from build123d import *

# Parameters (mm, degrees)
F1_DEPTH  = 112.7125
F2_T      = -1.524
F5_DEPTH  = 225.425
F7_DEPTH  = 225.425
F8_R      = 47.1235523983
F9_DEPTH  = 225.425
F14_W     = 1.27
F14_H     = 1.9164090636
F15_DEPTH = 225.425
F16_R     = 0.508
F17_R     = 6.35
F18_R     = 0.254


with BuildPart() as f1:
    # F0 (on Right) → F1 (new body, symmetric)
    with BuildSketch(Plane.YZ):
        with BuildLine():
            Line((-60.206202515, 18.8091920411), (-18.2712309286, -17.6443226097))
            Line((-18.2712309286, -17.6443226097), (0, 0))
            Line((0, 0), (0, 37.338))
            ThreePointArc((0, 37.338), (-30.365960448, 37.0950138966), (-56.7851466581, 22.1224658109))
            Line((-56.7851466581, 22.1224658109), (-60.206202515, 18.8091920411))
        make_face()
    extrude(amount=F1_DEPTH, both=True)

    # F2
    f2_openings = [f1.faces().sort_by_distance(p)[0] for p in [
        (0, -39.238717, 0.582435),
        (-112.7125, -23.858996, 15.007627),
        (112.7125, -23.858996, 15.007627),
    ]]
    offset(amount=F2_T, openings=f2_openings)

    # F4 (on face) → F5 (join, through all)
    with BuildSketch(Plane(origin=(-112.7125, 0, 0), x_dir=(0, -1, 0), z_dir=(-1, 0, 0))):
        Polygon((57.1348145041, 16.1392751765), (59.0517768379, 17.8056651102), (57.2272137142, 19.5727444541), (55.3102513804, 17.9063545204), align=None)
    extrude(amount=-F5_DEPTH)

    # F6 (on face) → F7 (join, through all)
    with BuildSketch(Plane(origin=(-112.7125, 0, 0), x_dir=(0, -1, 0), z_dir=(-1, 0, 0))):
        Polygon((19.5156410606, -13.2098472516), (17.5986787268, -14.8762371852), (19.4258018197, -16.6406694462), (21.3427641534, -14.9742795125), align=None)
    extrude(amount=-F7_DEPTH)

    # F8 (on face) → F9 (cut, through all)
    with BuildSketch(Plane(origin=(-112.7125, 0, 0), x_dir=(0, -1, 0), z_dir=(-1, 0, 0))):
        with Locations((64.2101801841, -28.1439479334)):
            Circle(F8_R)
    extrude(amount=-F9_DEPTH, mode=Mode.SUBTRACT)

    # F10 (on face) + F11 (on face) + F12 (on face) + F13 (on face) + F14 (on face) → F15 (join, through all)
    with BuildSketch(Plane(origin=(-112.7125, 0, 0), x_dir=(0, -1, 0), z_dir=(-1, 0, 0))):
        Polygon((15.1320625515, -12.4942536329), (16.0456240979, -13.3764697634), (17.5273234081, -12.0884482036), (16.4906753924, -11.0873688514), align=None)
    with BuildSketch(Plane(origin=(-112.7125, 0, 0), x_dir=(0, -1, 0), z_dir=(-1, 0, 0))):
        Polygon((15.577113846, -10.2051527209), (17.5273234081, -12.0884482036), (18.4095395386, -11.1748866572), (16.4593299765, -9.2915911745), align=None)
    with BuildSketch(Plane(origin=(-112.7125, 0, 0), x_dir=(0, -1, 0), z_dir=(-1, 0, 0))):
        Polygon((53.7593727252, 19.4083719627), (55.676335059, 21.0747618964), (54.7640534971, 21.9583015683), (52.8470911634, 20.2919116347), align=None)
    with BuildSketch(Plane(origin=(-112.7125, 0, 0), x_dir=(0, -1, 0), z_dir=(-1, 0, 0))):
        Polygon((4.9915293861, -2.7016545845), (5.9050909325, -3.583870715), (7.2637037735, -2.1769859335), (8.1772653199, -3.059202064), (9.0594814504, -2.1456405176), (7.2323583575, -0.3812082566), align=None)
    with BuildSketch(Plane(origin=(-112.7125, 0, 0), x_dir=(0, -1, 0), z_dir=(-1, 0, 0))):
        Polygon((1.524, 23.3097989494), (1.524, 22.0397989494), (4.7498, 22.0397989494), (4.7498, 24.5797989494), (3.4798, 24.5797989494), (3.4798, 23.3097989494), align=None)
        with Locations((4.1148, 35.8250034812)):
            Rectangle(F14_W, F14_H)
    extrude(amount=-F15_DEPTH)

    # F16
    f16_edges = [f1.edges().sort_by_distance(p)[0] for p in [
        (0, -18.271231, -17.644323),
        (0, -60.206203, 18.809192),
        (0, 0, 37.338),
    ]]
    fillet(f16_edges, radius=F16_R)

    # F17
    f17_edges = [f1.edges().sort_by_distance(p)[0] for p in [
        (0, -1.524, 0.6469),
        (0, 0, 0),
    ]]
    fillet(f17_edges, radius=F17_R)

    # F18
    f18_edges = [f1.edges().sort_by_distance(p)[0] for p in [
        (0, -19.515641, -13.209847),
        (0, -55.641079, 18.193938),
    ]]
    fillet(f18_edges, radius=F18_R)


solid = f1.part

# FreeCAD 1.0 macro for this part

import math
import FreeCAD as App
import Part
import Sketcher

V = App.Vector
Q = App.Units.Quantity


def edges_at(feature, points):
    """Names of the edges that pass closest to the given points."""
    edges = feature.Shape.Edges
    near = lambda p: min(range(len(edges)), key=lambda i: edges[i].distToShape(Part.Vertex(*p))[0])
    return sorted({f"Edge{near(p) + 1}" for p in points})


def faces_at(feature, points):
    """Names of the faces that lie closest to the given points."""
    faces = feature.Shape.Faces
    near = lambda p: min(range(len(faces)), key=lambda i: faces[i].distToShape(Part.Vertex(*p))[0])
    return sorted({f"Face{near(p) + 1}" for p in points})

doc = App.newDocument("Part")
body = doc.addObject("PartDesign::Body", "Body")

# Sketch on YZ plane
sketch1 = body.newObject("Sketcher::SketchObject", "Sketch")
sketch1.AttachmentSupport = (doc.getObject("YZ_Plane"), [""])
sketch1.MapMode = "FlatFace"
sketch1.addGeometry([
    Part.LineSegment(V(-60.206203, 18.809192, 0), V(-18.271231, -17.644323, 0)),  # 0
    Part.LineSegment(V(-18.271231, -17.644323, 0), V(0, 0, 0)),  # 1
    Part.LineSegment(V(0, 0, 0), V(0, 37.338, 0)),  # 2
    Part.ArcOfCircle(Part.Circle(V(-14.714602, -21.31665, 0), V(0, 0, 1), 60.472204), math.radians(75.916933), math.radians(134.083067)),  # 3
    Part.LineSegment(V(-56.785147, 22.122466, 0), V(-60.206203, 18.809192, 0)),  # 4
], False)
sketch1.addConstraint([
    Sketcher.Constraint("Coincident", 0, 2, 1, 1),
    Sketcher.Constraint("Coincident", 1, 2, 2, 1),
    Sketcher.Constraint("Coincident", 2, 2, 3, 1),
    Sketcher.Constraint("Tangent", 3, 2, 4, 1),
    Sketcher.Constraint("Coincident", 4, 2, 0, 1),
    Sketcher.Constraint("Vertical", 2),
    Sketcher.Constraint("Coincident", 1, 2, -1, 1),
    Sketcher.Constraint("Distance", 1, Q("1 in")),
    Sketcher.Constraint("Angle", 0, Q("-41 deg")),
    Sketcher.Constraint("Angle", 1, Q("44 deg")),
    Sketcher.Constraint("DistanceY", 2, 1, 2, 2, Q("1.47 in")),
    Sketcher.Constraint("Distance", 4, Q("0.1875 in")),
    Sketcher.Constraint("Radius", 3, 60.472204),
    Sketcher.Constraint("DistanceX", 4, 2, 3, 3, 45.4916),
])
pad1 = body.newObject("PartDesign::Pad", "Pad")
pad1.Profile = sketch1
pad1.Length = Q("8.875 in")
pad1.Midplane = True
doc.recompute()

thickness = body.newObject("PartDesign::Thickness", "Thickness")
thickness.Base = (pad1, faces_at(pad1, [(0, -39.239, 0.582), (-112.713, -30.103, 10.756), (112.713, -30.103, 10.756)]))
thickness.Value = Q("0.06 in")
thickness.Reversed = True
thickness.Join = "Arc"

# Sketch on YZ plane
sketch2 = body.newObject("Sketcher::SketchObject", "Sketch001")
sketch2.AttachmentSupport = (doc.getObject("YZ_Plane"), [""])
sketch2.MapMode = "FlatFace"
sketch2.AttachmentOffset = App.Placement(V(0, 0, -4.4375 * 25.4), App.Rotation())
sketch2.addGeometry([
    Part.LineSegment(V(-57.134815, 16.139275, 0), V(-59.051777, 17.805665, 0)),
    Part.LineSegment(V(-59.051777, 17.805665, 0), V(-57.227214, 19.572744, 0)),
    Part.LineSegment(V(-57.227214, 19.572744, 0), V(-55.310251, 17.906355, 0)),
    Part.LineSegment(V(-55.310251, 17.906355, 0), V(-57.134815, 16.139275, 0)),
], False)
sketch2.addConstraint([
    Sketcher.Constraint("Coincident", 0, 2, 1, 1),
    Sketcher.Constraint("Coincident", 1, 2, 2, 1),
    Sketcher.Constraint("Coincident", 2, 2, 3, 1),
    Sketcher.Constraint("Coincident", 3, 2, 0, 1),
    Sketcher.Constraint("Parallel", 0, 2),
    Sketcher.Constraint("Parallel", 1, 3),
    Sketcher.Constraint("Equal", 0, 1),
    Sketcher.Constraint("Angle", 0, Q("139 deg")),
    Sketcher.Constraint("Distance", 0, Q("0.1 in")),
    Sketcher.Constraint("DistanceX", 1, 2, 3, 2, 0.092399),
    Sketcher.Constraint("DistanceX", 2, 2, -1, 1, 55.310251),
    Sketcher.Constraint("DistanceY", -1, 1, 0, 2, 17.805665),
])
pad2 = body.newObject("PartDesign::Pad", "Pad001")
pad2.Profile = sketch2
pad2.Length = Q("8.875 in")

# Sketch on YZ plane
sketch3 = body.newObject("Sketcher::SketchObject", "Sketch002")
sketch3.AttachmentSupport = (doc.getObject("YZ_Plane"), [""])
sketch3.MapMode = "FlatFace"
sketch3.AttachmentOffset = App.Placement(V(0, 0, -4.4375 * 25.4), App.Rotation())
sketch3.addGeometry([
    Part.LineSegment(V(-19.515641, -13.209847, 0), V(-17.598679, -14.876237, 0)),
    Part.LineSegment(V(-17.598679, -14.876237, 0), V(-19.425802, -16.640669, 0)),
    Part.LineSegment(V(-19.425802, -16.640669, 0), V(-21.342764, -14.97428, 0)),
    Part.LineSegment(V(-21.342764, -14.97428, 0), V(-19.515641, -13.209847, 0)),
], False)
sketch3.addConstraint([
    Sketcher.Constraint("Coincident", 0, 2, 1, 1),
    Sketcher.Constraint("Coincident", 1, 2, 2, 1),
    Sketcher.Constraint("Coincident", 2, 2, 3, 1),
    Sketcher.Constraint("Coincident", 3, 2, 0, 1),
    Sketcher.Constraint("Parallel", 0, 2),
    Sketcher.Constraint("Parallel", 1, 3),
    Sketcher.Constraint("Equal", 0, 1),
    Sketcher.Constraint("Angle", 0, Q("-41 deg")),
    Sketcher.Constraint("Angle", 1, Q("-136 deg")),
    Sketcher.Constraint("Distance", 0, Q("0.1 in")),
    Sketcher.Constraint("DistanceX", 1, 2, -1, 1, 19.425802),
    Sketcher.Constraint("DistanceY", 1, 2, -1, 1, 16.640669),
])
pad3 = body.newObject("PartDesign::Pad", "Pad002")
pad3.Profile = sketch3
pad3.Length = Q("8.875 in")

# Sketch on YZ plane
sketch4 = body.newObject("Sketcher::SketchObject", "Sketch003")
sketch4.AttachmentSupport = (doc.getObject("YZ_Plane"), [""])
sketch4.MapMode = "FlatFace"
sketch4.AttachmentOffset = App.Placement(V(0, 0, -4.4375 * 25.4), App.Rotation())
sketch4.addGeometry(Part.Circle(V(-64.21018, -28.143948, 0), V(0, 0, 1), 47.123552), False)
sketch4.addConstraint([
    Sketcher.Constraint("Diameter", 0, 94.247105),
    Sketcher.Constraint("DistanceX", 0, 3, -1, 1, 64.21018),
    Sketcher.Constraint("DistanceY", 0, 3, -1, 1, 28.143948),
])
pocket1 = body.newObject("PartDesign::Pocket", "Pocket")
pocket1.Profile = sketch4
pocket1.Type = "ThroughAll"
pocket1.Reversed = True

# Sketch on YZ plane
sketch5 = body.newObject("Sketcher::SketchObject", "Sketch004")
sketch5.AttachmentSupport = (doc.getObject("YZ_Plane"), [""])
sketch5.MapMode = "FlatFace"
sketch5.AttachmentOffset = App.Placement(V(0, 0, -4.4375 * 25.4), App.Rotation())
sketch5.addGeometry([
    Part.LineSegment(V(-15.132063, -12.494254, 0), V(-16.045624, -13.37647, 0)),  # 0
    Part.LineSegment(V(-16.045624, -13.37647, 0), V(-17.527323, -12.088448, 0)),  # 1
    Part.LineSegment(V(-17.527323, -12.088448, 0), V(-18.40954, -11.174887, 0)),  # 2
    Part.LineSegment(V(-18.40954, -11.174887, 0), V(-16.45933, -9.291591, 0)),  # 3
    Part.LineSegment(V(-16.45933, -9.291591, 0), V(-15.577114, -10.205153, 0)),  # 4
    Part.LineSegment(V(-15.577114, -10.205153, 0), V(-16.490675, -11.087369, 0)),  # 5
    Part.LineSegment(V(-16.490675, -11.087369, 0), V(-15.132063, -12.494254, 0)),  # 6
    Part.LineSegment(V(-53.759373, 19.408372, 0), V(-55.676335, 21.074762, 0)),  # 7
    Part.LineSegment(V(-55.676335, 21.074762, 0), V(-54.764053, 21.958302, 0)),  # 8
    Part.LineSegment(V(-54.764053, 21.958302, 0), V(-52.847091, 20.291912, 0)),  # 9
    Part.LineSegment(V(-52.847091, 20.291912, 0), V(-53.759373, 19.408372, 0)),  # 10
    Part.LineSegment(V(-4.991529, -2.701655, 0), V(-5.905091, -3.583871, 0)),  # 11
    Part.LineSegment(V(-5.905091, -3.583871, 0), V(-7.263704, -2.176986, 0)),  # 12
    Part.LineSegment(V(-7.263704, -2.176986, 0), V(-8.177265, -3.059202, 0)),  # 13
    Part.LineSegment(V(-8.177265, -3.059202, 0), V(-9.059481, -2.145641, 0)),  # 14
    Part.LineSegment(V(-9.059481, -2.145641, 0), V(-7.232358, -0.381208, 0)),  # 15
    Part.LineSegment(V(-7.232358, -0.381208, 0), V(-4.991529, -2.701655, 0)),  # 16
    Part.LineSegment(V(-1.524, 23.309799, 0), V(-1.524, 22.039799, 0)),  # 17
    Part.LineSegment(V(-1.524, 22.039799, 0), V(-4.7498, 22.039799, 0)),  # 18
    Part.LineSegment(V(-4.7498, 22.039799, 0), V(-4.7498, 24.579799, 0)),  # 19
    Part.LineSegment(V(-4.7498, 24.579799, 0), V(-3.4798, 24.579799, 0)),  # 20
    Part.LineSegment(V(-3.4798, 24.579799, 0), V(-3.4798, 23.309799, 0)),  # 21
    Part.LineSegment(V(-3.4798, 23.309799, 0), V(-1.524, 23.309799, 0)),  # 22
    Part.LineSegment(V(-3.4798, 36.783208, 0), V(-3.4798, 34.866799, 0)),  # 23
    Part.LineSegment(V(-3.4798, 34.866799, 0), V(-4.7498, 34.866799, 0)),  # 24
    Part.LineSegment(V(-4.7498, 34.866799, 0), V(-4.7498, 36.783208, 0)),  # 25
    Part.LineSegment(V(-4.7498, 36.783208, 0), V(-3.4798, 36.783208, 0)),  # 26
], False)
sketch5.addConstraint([
    Sketcher.Constraint("Coincident", 0, 2, 1, 1),
    Sketcher.Constraint("Coincident", 1, 2, 2, 1),
    Sketcher.Constraint("Coincident", 2, 2, 3, 1),
    Sketcher.Constraint("Coincident", 3, 2, 4, 1),
    Sketcher.Constraint("Coincident", 4, 2, 5, 1),
    Sketcher.Constraint("Coincident", 5, 2, 6, 1),
    Sketcher.Constraint("Coincident", 6, 2, 0, 1),
    Sketcher.Constraint("Coincident", 7, 2, 8, 1),
    Sketcher.Constraint("Coincident", 8, 2, 9, 1),
    Sketcher.Constraint("Coincident", 9, 2, 10, 1),
    Sketcher.Constraint("Coincident", 10, 2, 7, 1),
    Sketcher.Constraint("Coincident", 11, 2, 12, 1),
    Sketcher.Constraint("Coincident", 12, 2, 13, 1),
    Sketcher.Constraint("Coincident", 13, 2, 14, 1),
    Sketcher.Constraint("Coincident", 14, 2, 15, 1),
    Sketcher.Constraint("Coincident", 15, 2, 16, 1),
    Sketcher.Constraint("Coincident", 16, 2, 11, 1),
    Sketcher.Constraint("Coincident", 17, 2, 18, 1),
    Sketcher.Constraint("Coincident", 18, 2, 19, 1),
    Sketcher.Constraint("Coincident", 19, 2, 20, 1),
    Sketcher.Constraint("Coincident", 20, 2, 21, 1),
    Sketcher.Constraint("Coincident", 21, 2, 22, 1),
    Sketcher.Constraint("Coincident", 22, 2, 17, 1),
    Sketcher.Constraint("Coincident", 23, 2, 24, 1),
    Sketcher.Constraint("Coincident", 24, 2, 25, 1),
    Sketcher.Constraint("Coincident", 25, 2, 26, 1),
    Sketcher.Constraint("Coincident", 26, 2, 23, 1),
    Sketcher.Constraint("Vertical", 17),
    Sketcher.Constraint("Horizontal", 18),
    Sketcher.Constraint("Vertical", 19),
    Sketcher.Constraint("Horizontal", 20),
    Sketcher.Constraint("Vertical", 21),
    Sketcher.Constraint("Horizontal", 22),
    Sketcher.Constraint("Vertical", 23),
    Sketcher.Constraint("Horizontal", 24),
    Sketcher.Constraint("Vertical", 25),
    Sketcher.Constraint("Horizontal", 26),
    Sketcher.Constraint("Perpendicular", 0, 2),
    Sketcher.Constraint("Perpendicular", 2, 3),
    Sketcher.Constraint("Perpendicular", 3, 4),
    Sketcher.Constraint("Perpendicular", 4, 5),
    Sketcher.Constraint("Perpendicular", 5, 6),
    Sketcher.Constraint("Parallel", 1, 7),
    Sketcher.Constraint("Parallel", 7, 9),
    Sketcher.Constraint("Parallel", 8, 10),
    Sketcher.Constraint("Perpendicular", 6, 11),
    Sketcher.Constraint("Perpendicular", 11, 12),
    Sketcher.Constraint("Perpendicular", 12, 13),
    Sketcher.Constraint("Perpendicular", 13, 14),
    Sketcher.Constraint("Perpendicular", 14, 15),
    Sketcher.Constraint("Perpendicular", 15, 16),
    Sketcher.Constraint("Vertical", 21, 2, 23, 2),
    Sketcher.Constraint("Vertical", 19, 2, 24, 2),
    Sketcher.Constraint("Equal", 26, 17),
    Sketcher.Constraint("Equal", 17, 21),
    Sketcher.Constraint("Equal", 0, 2),
    Sketcher.Constraint("Equal", 2, 4),
    Sketcher.Constraint("Equal", 4, 5),
    Sketcher.Constraint("Equal", 5, 8),
    Sketcher.Constraint("Equal", 10, 11),
    Sketcher.Constraint("Equal", 6, 12),
    Sketcher.Constraint("Equal", 11, 13),
    Sketcher.Constraint("Equal", 13, 14),
    Sketcher.Constraint("Equal", 9, 15),
    Sketcher.Constraint("DistanceY", 19, 1, 19, 2, Q("0.1 in")),
    Sketcher.Constraint("Angle", 0, Q("-136 deg")),
    Sketcher.Constraint("Angle", 1, Q("139 deg")),
    Sketcher.Constraint("Distance", 7, Q("0.1 in")),
    Sketcher.Constraint("DistanceX", 18, 2, 18, 1, Q("0.127 in")),
    Sketcher.Constraint("DistanceX", 17, 2, -1, 1, Q("0.06 in")),
    Sketcher.Constraint("Distance", 6, Q("0.077 in")),
    Sketcher.Constraint("DistanceY", 20, 2, 23, 2, Q("0.405 in")),
    Sketcher.Constraint("DistanceY", -1, 1, 8, 2, Q("0.8645001 in")),
    Sketcher.Constraint("DistanceY", 23, 2, 23, 1, 1.916409),
    Sketcher.Constraint("DistanceY", -1, 1, 17, 2, 22.039799),
    Sketcher.Constraint("DistanceY", 2, 2, 9, 2, 31.466798),
    Sketcher.Constraint("DistanceY", 5, 2, 11, 2, 7.503498),
    Sketcher.Constraint("DistanceX", 2, 2, -1, 1, 18.40954),
    Sketcher.Constraint("DistanceY", -1, 1, 7, 2, 21.074762),
    Sketcher.Constraint("DistanceX", 9, 2, -1, 1, 52.847091),
    Sketcher.Constraint("DistanceX", 11, 2, -1, 1, 5.905091),
])
pad4 = body.newObject("PartDesign::Pad", "Pad003")
pad4.Profile = sketch5
pad4.Length = Q("8.875 in")
doc.recompute()

fillet = body.newObject("PartDesign::Fillet", "Fillet")
fillet.Base = (pad4, edges_at(pad4, [(0, -18.271, -17.644), (0, -60.206, 18.809), (0, 0, 37.338)]))
fillet.Radius = Q("0.02 in")
doc.recompute()

fillet2 = body.newObject("PartDesign::Fillet", "Fillet001")
fillet2.Base = (fillet, edges_at(fillet, [(0, -1.524, 0.647), (0, 0, 0)]))
fillet2.Radius = Q("0.25 in")
doc.recompute()

fillet3 = body.newObject("PartDesign::Fillet", "Fillet002")
fillet3.Base = (fillet2, edges_at(fillet2, [(0, -19.516, -13.21), (0, -55.641, 18.194)]))
fillet3.Radius = Q("0.01 in")

doc.recompute()
